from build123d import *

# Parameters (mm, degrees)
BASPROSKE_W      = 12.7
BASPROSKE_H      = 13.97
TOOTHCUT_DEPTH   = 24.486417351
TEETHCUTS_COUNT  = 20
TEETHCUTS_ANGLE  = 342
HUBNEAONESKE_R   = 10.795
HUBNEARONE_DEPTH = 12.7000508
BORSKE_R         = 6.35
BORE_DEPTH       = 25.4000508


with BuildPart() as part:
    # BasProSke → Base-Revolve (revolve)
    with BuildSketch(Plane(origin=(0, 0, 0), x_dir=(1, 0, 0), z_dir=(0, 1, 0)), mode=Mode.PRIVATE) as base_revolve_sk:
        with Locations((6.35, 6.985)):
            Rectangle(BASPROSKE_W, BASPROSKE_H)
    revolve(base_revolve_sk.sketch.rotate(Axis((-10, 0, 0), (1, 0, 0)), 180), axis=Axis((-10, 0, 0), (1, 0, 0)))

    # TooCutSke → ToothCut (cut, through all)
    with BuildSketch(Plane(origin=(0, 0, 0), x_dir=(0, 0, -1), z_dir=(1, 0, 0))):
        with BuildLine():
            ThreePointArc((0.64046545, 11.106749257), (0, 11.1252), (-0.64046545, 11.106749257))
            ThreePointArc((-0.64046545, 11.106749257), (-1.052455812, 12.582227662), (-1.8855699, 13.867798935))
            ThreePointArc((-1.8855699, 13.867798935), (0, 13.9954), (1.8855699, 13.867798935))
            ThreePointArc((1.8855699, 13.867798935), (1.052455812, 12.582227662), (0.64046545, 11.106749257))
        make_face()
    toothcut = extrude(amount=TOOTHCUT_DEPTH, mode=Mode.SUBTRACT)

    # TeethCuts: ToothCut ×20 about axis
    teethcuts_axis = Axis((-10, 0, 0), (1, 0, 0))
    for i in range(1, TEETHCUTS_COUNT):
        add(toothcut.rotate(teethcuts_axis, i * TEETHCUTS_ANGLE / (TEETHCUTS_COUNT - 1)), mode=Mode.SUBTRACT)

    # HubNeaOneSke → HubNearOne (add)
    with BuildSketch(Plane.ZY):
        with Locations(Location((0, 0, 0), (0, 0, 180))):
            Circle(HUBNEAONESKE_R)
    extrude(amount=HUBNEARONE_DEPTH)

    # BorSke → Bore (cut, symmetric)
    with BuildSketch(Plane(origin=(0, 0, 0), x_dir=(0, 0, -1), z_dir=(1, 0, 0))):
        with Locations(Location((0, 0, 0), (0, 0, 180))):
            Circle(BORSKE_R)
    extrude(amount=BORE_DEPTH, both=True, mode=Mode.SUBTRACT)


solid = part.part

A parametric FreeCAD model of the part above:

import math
import FreeCAD as App
import Part
import Sketcher
from FreeCAD import Vector
Q = App.Units.Quantity

doc = App.newDocument("Part")
body = doc.addObject("PartDesign::Body", "Body")

# Sketch on XZ plane
sketch1 = body.newObject("Sketcher::SketchObject", "Sketch")
sketch1.AttachmentSupport = (doc.getObject("XZ_Plane"), [""])
sketch1.MapMode = "FlatFace"
sketch1.addGeometry(Part.LineSegment(Vector(0, -14, 0), Vector(0, 0, 0)), False)
sketch1.addGeometry(Part.LineSegment(Vector(0, 0, 0), Vector(13, 0, 0)), False)
sketch1.addGeometry(Part.LineSegment(Vector(13, 0, 0), Vector(13, -14, 0)), False)
sketch1.addGeometry(Part.LineSegment(Vector(13, -14, 0), Vector(0, -14, 0)), False)
sketch1.addConstraint(Sketcher.Constraint("Coincident", 0, 2, 1, 1))
sketch1.addConstraint(Sketcher.Constraint("Coincident", 1, 2, 2, 1))
sketch1.addConstraint(Sketcher.Constraint("Coincident", 2, 2, 3, 1))
sketch1.addConstraint(Sketcher.Constraint("Coincident", 3, 2, 0, 1))
sketch1.addConstraint(Sketcher.Constraint("Vertical", 0))
sketch1.addConstraint(Sketcher.Constraint("Horizontal", 1))
sketch1.addConstraint(Sketcher.Constraint("Vertical", 2))
sketch1.addConstraint(Sketcher.Constraint("Horizontal", 3))
sketch1.addConstraint(Sketcher.Constraint("Coincident", 0, 2, -1, 1))
sketch1.addConstraint(Sketcher.Constraint("DistanceX", 1, 1, 1, 2, Q("0.5 in")))
sketch1.addConstraint(Sketcher.Constraint("DistanceY", 0, 1, 0, 2, Q("0.55 in")))
revolution = body.newObject("PartDesign::Revolution", "Revolution")
revolution.Profile = sketch1
revolution.ReferenceAxis = (sketch1, ["H_Axis"])
revolution.Angle = 360

# Sketch on YZ plane
sketch2 = body.newObject("Sketcher::SketchObject", "Sketch001")
sketch2.AttachmentSupport = (doc.getObject("YZ_Plane"), [""])
sketch2.MapMode = "FlatFace"
sketch2.addGeometry(Part.ArcOfCircle(Part.Circle(Vector(0, 0, 0), Vector(0, 0, 1), 11.1), math.radians(-3.3), math.radians(3.3)), False)
sketch2.addGeometry(Part.ArcOfCircle(Part.Circle(Vector(10.5, -5.7, 0), Vector(0, 0, 1), 5.1), math.radians(48), math.radians(83)), False)
sketch2.addGeometry(Part.ArcOfCircle(Part.Circle(Vector(0, 0, 0), Vector(0, 0, 1), 14), math.radians(-7.74), math.radians(7.74)), False)
sketch2.addGeometry(Part.ArcOfCircle(Part.Circle(Vector(10.5, 5.7, 0), Vector(0, 0, 1), 5.1), math.radians(-83), math.radians(-48)), False)
sketch2.addConstraint(Sketcher.Constraint("Coincident", 0, 1, 1, 2))
sketch2.addConstraint(Sketcher.Constraint("Coincident", 1, 1, 2, 1))
sketch2.addConstraint(Sketcher.Constraint("Coincident", 2, 2, 3, 2))
sketch2.addConstraint(Sketcher.Constraint("Coincident", 3, 1, 0, 2))
sketch2.addConstraint(Sketcher.Constraint("Coincident", 0, 3, -1, 1))
sketch2.addConstraint(Sketcher.Constraint("Coincident", 2, 3, -1, 1))
sketch2.addConstraint(Sketcher.Constraint("Equal", 1, 3))
sketch2.addConstraint(Sketcher.Constraint("Symmetric", 1, 3, 3, 3, -1))
sketch2.addConstraint(Sketcher.Constraint("Radius", 1, Q("0.2 in")))
sketch2.addConstraint(Sketcher.Constraint("Radius", 0, Q("0.438 in")))
sketch2.addConstraint(Sketcher.Constraint("Radius", 2, Q("0.551 in")))
sketch2.addConstraint(Sketcher.Constraint("DistanceX", -1, 1, 1, 1, 13.867799))
sketch2.addConstraint(Sketcher.Constraint("DistanceY", 1, 3, 0, 1, 5.042898))
pocket1 = body.newObject("PartDesign::Pocket", "Pocket")
pocket1.Profile = sketch2
pocket1.Type = "ThroughAll"
pocket1.Reversed = True
doc.recompute()

polarpattern = body.newObject("PartDesign::PolarPattern", "PolarPattern")
polarpattern.Originals = [pocket1]
polarpattern.Axis = (doc.getObject("X_Axis"), [""])
polarpattern.Angle = 360
polarpattern.Occurrences = 20
body.Tip = polarpattern

# Sketch on YZ plane
sketch3 = body.newObject("Sketcher::SketchObject", "Sketch002")
sketch3.AttachmentSupport = (doc.getObject("YZ_Plane"), [""])
sketch3.MapMode = "FlatFace"
sketch3.addGeometry(Part.Circle(Vector(0, 0, 0), Vector(0, 0, 1), 11), False)
sketch3.addConstraint(Sketcher.Constraint("Coincident", 0, 3, -1, 1))
sketch3.addConstraint(Sketcher.Constraint("Diameter", 0, Q("0.85 in")))
pad1 = body.newObject("PartDesign::Pad", "Pad")
pad1.Profile = sketch3
pad1.Length = 12.700051
pad1.Reversed = True

# Sketch on YZ plane
sketch4 = body.newObject("Sketcher::SketchObject", "Sketch003")
sketch4.AttachmentSupport = (doc.getObject("YZ_Plane"), [""])
sketch4.MapMode = "FlatFace"
sketch4.addGeometry(Part.Circle(Vector(0, 0, 0), Vector(0, 0, 1), 6), False)
sketch4.addConstraint(Sketcher.Constraint("Coincident", 0, 3, -1, 1))
sketch4.addConstraint(Sketcher.Constraint("Diameter", 0, Q("0.5 in")))
pocket2 = body.newObject("PartDesign::Pocket", "Pocket001")
pocket2.Profile = sketch4
pocket2.Length = 50.800102
pocket2.Midplane = True

doc.recompute()
